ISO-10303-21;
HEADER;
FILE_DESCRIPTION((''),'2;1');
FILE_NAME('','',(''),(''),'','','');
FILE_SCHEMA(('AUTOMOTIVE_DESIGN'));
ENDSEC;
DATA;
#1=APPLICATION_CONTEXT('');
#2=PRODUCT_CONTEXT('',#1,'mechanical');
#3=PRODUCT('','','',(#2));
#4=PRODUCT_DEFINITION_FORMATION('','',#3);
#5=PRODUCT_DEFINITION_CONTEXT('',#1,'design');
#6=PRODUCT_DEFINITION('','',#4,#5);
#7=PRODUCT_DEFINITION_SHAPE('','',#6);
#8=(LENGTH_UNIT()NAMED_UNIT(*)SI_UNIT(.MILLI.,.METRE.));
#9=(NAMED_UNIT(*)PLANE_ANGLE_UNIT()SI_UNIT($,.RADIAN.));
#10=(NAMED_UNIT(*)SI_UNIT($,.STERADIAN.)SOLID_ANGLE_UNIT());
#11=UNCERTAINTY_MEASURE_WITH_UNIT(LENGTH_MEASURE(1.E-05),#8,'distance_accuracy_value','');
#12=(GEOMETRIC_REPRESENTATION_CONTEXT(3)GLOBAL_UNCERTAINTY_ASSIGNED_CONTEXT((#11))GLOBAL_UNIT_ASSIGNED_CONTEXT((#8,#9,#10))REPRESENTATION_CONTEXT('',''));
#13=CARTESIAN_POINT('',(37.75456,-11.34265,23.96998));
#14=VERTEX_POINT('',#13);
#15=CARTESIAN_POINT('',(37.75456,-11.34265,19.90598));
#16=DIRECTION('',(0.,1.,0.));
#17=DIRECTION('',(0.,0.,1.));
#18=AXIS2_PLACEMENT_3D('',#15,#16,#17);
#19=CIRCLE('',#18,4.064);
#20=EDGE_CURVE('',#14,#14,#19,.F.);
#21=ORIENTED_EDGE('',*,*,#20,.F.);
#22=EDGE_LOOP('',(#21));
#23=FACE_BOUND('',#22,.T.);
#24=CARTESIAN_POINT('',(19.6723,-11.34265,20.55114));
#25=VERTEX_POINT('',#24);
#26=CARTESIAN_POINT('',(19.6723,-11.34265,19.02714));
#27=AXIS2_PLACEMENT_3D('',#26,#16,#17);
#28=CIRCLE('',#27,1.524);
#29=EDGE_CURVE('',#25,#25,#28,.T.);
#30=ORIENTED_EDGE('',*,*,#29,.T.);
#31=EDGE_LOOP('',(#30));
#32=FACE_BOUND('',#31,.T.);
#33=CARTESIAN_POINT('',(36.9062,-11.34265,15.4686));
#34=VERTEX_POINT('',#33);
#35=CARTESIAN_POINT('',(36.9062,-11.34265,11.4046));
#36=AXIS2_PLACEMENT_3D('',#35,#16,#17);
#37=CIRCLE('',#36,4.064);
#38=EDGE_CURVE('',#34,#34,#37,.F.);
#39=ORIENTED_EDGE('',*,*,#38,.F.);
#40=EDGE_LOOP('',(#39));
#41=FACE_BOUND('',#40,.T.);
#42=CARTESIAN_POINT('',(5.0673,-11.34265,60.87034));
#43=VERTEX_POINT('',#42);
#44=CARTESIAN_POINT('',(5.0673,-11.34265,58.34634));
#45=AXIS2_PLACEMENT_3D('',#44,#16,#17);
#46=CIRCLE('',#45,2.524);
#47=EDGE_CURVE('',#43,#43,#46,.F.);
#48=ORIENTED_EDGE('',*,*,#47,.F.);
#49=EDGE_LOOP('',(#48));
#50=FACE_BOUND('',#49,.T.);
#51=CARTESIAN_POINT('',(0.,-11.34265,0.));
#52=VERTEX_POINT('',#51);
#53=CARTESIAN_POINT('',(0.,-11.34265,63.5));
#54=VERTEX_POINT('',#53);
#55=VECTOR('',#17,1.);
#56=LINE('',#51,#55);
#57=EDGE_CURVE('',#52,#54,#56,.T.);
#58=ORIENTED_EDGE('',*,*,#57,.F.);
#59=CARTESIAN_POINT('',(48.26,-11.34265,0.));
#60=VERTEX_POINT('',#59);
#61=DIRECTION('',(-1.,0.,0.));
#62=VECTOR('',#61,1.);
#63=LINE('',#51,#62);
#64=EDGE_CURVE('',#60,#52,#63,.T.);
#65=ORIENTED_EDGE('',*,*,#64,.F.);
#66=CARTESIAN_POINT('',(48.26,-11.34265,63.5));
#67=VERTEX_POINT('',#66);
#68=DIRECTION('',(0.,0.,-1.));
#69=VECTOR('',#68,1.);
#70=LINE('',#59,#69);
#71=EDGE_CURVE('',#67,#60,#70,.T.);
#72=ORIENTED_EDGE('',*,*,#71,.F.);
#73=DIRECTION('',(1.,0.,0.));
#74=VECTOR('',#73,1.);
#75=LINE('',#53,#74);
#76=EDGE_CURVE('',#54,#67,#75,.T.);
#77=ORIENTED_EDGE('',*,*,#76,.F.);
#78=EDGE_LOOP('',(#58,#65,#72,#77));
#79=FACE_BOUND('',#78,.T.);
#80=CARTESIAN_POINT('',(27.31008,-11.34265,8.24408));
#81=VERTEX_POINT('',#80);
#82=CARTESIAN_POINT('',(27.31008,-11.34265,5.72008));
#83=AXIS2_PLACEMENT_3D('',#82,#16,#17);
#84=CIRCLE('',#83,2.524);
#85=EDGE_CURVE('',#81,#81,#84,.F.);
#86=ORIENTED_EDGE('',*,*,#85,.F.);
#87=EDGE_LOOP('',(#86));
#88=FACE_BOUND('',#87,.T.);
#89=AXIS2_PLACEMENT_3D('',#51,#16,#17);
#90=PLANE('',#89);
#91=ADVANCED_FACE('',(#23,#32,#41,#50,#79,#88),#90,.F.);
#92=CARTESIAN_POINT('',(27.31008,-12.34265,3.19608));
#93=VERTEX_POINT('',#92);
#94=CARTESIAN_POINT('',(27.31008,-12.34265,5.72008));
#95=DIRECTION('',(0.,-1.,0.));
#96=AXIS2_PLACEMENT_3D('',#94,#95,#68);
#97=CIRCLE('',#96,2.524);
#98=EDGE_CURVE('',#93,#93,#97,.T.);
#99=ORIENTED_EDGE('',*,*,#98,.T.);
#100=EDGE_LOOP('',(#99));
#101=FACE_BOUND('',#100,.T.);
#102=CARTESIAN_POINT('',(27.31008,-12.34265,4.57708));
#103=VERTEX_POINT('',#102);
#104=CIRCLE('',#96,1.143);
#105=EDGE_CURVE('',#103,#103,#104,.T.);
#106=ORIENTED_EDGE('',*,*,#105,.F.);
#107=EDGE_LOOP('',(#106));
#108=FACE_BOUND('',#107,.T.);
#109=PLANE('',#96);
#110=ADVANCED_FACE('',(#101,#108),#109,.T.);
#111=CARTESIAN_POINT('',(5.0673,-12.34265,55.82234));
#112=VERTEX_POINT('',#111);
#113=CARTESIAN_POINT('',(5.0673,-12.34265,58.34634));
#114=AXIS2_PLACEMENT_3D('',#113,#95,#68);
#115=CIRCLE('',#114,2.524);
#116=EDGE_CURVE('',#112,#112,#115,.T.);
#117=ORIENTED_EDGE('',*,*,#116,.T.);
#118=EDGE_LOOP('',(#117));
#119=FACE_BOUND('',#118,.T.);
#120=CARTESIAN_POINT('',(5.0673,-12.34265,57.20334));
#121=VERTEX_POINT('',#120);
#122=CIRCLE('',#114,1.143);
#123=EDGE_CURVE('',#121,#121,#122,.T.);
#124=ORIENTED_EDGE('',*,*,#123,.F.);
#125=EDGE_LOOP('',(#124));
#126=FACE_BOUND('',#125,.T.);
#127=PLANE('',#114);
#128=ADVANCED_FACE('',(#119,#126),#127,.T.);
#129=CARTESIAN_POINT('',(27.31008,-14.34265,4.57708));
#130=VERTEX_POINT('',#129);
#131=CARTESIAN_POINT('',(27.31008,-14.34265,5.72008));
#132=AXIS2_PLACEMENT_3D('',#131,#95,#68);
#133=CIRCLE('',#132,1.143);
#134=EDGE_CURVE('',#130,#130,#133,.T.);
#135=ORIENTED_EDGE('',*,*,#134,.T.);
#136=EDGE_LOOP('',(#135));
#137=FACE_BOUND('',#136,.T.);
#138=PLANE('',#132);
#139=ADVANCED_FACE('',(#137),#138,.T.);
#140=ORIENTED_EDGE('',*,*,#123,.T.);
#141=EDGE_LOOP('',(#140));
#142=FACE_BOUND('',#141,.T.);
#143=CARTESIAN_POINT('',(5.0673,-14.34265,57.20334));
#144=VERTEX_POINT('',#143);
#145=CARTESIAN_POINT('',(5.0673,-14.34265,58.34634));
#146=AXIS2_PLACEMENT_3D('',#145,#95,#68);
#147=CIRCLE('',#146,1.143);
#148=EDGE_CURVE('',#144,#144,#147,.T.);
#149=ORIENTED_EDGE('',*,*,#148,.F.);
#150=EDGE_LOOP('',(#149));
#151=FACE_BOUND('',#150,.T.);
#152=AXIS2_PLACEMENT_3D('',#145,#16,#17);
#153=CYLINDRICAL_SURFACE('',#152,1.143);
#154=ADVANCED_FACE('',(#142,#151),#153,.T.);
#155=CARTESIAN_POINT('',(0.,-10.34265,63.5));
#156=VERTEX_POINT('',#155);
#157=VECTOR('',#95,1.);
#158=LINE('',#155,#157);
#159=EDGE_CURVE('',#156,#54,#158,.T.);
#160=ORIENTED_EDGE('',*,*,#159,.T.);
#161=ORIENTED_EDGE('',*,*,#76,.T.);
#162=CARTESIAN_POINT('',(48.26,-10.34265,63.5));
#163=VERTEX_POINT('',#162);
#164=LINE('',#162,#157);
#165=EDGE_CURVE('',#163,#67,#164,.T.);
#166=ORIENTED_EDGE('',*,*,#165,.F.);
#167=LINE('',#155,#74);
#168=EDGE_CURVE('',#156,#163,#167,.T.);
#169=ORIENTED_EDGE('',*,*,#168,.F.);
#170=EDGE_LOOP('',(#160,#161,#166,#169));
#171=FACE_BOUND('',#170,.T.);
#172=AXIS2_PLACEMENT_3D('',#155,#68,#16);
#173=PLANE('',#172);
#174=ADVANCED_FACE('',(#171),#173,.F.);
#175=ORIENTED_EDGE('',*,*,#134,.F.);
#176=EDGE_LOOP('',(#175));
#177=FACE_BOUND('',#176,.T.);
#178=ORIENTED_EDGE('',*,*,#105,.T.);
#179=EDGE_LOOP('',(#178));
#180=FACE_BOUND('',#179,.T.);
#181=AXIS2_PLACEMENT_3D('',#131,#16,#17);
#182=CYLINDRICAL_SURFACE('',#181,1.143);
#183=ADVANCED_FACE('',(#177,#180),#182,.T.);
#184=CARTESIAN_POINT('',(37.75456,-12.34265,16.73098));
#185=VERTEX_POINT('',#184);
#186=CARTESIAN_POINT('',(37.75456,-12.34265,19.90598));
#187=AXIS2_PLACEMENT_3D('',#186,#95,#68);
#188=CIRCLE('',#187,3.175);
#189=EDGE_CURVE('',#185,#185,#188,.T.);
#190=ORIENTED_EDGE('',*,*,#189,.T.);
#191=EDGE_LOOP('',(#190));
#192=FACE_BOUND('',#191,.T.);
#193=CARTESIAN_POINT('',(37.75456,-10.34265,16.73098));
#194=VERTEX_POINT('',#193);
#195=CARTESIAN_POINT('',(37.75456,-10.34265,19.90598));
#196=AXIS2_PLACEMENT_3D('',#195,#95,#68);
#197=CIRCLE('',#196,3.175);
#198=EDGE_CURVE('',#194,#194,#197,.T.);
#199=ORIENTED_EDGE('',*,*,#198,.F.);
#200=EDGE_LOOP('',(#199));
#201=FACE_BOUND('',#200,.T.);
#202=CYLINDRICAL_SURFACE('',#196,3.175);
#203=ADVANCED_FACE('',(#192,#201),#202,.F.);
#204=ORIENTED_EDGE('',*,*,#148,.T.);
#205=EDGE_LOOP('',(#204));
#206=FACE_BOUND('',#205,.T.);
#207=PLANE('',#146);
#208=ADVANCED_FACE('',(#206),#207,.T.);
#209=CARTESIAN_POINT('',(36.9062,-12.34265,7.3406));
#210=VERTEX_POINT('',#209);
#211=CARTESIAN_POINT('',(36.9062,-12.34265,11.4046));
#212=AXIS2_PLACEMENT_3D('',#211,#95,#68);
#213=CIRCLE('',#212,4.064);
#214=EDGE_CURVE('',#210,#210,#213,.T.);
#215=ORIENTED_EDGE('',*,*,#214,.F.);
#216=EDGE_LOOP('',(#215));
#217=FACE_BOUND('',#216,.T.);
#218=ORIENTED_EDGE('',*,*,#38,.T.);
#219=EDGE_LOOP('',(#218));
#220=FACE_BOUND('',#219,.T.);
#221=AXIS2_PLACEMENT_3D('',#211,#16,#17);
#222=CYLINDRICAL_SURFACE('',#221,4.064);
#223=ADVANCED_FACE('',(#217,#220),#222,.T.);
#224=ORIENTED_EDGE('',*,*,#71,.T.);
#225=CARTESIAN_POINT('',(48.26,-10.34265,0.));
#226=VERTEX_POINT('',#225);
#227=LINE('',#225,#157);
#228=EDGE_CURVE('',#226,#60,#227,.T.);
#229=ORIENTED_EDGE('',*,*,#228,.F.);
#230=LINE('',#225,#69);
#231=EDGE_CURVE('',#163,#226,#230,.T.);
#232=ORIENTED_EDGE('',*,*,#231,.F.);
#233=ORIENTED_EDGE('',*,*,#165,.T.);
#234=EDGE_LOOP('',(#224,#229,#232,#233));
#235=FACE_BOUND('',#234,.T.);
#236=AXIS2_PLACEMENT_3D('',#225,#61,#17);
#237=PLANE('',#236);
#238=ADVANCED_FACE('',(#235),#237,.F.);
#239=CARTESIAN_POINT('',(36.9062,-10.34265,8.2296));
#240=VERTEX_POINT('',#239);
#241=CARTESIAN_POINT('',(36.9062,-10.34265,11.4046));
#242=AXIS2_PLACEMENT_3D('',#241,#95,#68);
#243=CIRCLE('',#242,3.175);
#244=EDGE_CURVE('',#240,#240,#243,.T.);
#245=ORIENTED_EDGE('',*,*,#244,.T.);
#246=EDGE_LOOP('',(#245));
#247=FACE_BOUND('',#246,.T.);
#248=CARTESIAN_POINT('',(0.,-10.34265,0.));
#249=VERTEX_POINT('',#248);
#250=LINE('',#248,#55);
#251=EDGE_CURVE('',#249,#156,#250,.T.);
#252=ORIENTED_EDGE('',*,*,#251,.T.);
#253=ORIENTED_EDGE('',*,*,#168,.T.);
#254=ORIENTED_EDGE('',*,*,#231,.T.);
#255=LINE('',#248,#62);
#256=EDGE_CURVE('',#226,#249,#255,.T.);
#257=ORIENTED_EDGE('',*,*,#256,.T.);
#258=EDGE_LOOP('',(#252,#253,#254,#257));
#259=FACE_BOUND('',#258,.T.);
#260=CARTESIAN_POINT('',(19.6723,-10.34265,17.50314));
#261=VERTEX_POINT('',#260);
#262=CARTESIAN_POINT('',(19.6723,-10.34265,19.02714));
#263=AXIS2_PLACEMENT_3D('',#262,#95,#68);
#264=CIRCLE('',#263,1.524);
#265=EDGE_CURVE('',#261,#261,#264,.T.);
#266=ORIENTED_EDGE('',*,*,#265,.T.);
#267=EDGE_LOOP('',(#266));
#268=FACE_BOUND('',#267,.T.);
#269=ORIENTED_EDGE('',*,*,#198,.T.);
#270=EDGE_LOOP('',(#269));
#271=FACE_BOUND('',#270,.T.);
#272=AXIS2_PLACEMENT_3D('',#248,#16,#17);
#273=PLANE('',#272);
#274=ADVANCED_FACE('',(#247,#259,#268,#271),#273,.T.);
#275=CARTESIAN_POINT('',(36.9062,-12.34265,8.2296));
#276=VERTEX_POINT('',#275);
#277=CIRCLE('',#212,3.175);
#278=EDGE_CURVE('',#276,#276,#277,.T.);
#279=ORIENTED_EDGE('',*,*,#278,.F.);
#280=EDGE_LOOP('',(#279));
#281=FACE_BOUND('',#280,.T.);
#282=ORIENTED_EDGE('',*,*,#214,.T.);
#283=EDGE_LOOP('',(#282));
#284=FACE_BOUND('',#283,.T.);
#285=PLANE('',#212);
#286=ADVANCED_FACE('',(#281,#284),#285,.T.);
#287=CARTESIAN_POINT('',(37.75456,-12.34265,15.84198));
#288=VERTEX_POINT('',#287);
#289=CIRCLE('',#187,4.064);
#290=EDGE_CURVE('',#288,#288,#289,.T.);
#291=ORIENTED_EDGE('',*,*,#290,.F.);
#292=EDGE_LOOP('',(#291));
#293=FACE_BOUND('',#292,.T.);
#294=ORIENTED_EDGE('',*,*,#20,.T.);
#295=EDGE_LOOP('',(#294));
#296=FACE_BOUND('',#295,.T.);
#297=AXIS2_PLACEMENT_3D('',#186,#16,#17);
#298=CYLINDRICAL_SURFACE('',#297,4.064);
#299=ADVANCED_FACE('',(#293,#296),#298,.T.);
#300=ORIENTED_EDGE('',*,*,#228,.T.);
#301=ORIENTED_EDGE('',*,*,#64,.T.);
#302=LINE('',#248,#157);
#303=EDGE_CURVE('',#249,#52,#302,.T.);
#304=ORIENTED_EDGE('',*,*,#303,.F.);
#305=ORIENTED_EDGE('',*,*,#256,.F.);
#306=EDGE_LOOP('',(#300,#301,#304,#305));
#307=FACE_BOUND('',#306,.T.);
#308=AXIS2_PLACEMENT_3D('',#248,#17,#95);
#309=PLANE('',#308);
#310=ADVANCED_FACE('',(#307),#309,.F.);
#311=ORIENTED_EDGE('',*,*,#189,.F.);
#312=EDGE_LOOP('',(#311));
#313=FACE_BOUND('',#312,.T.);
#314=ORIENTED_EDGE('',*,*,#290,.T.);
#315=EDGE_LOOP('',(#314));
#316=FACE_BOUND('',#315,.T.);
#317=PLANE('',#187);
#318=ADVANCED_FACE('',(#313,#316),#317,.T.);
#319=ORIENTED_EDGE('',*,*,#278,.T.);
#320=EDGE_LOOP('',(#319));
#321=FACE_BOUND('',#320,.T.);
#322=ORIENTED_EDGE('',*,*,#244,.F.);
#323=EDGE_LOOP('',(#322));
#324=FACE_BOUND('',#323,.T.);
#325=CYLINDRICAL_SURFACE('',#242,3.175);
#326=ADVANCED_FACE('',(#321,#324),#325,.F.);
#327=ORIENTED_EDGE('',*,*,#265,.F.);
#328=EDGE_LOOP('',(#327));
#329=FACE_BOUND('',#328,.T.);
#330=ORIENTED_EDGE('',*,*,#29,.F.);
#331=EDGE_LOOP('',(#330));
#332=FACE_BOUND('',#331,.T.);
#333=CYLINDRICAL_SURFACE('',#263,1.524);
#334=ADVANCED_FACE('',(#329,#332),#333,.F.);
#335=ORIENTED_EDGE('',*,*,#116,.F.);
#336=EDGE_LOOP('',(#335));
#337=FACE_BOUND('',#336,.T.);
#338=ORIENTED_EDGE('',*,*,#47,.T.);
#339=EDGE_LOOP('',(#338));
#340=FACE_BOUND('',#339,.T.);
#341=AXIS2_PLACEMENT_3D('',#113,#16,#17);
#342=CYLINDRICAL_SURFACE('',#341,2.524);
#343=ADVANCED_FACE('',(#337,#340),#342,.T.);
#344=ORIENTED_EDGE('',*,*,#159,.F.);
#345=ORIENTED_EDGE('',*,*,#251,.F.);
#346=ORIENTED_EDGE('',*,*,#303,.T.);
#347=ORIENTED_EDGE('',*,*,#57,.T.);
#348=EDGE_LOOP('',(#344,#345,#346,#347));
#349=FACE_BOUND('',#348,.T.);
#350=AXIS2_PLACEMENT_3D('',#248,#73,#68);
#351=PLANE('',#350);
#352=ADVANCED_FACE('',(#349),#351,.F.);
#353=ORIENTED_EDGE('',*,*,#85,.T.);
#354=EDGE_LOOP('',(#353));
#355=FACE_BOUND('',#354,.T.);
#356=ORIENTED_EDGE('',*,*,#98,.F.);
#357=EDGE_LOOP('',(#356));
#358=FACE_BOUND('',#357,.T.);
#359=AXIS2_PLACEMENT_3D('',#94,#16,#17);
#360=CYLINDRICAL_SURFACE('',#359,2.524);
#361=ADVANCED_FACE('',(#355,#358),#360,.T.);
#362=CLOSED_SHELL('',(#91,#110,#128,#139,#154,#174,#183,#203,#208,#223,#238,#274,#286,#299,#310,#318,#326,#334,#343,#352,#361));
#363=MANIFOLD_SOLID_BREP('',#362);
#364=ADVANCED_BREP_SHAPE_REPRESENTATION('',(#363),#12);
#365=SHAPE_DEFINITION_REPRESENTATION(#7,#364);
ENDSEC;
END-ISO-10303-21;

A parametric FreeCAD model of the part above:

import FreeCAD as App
import Part
import Sketcher

V = App.Vector
Q = App.Units.Quantity


def add_polygon(sketch, points):
    """Adds a closed chain of lines whose ends are joined by coincident constraints."""
    first, n = sketch.GeometryCount, len(points)
    for a, b in zip(points, points[1:] + points[:1]):
        sketch.addGeometry(Part.LineSegment(App.Vector(*a, 0), App.Vector(*b, 0)), False)
    for i in range(n):
        sketch.addConstraint(Sketcher.Constraint("Coincident", first + i, 2, first + (i + 1) % n, 1))

doc = App.newDocument("Part")
params = doc.addObject("Spreadsheet::Sheet", "Params")
for row, (alias, value) in enumerate([
    ("sketch1_width", "1.9 in"),
    ("sketch1_height", "2.5 in"),
    ("pad1_length", "1 mm"),
    ("sketch2_diameter", "0.09 in"),
    ("pad2_length", "3 mm"),
    ("sketch3_diameter", "0.32 in"),
    ("pad3_length", "1 mm"),
    ("sketch4_diameter", "0.25 in"),
    ("sketch4_diameter2", "0.12 in"),
], start=1):
    params.set(f"A{row}", alias)
    params.set(f"B{row}", "=" + value)
    params.setAlias(f"B{row}", alias)

body = doc.addObject("PartDesign::Body", "Body")

sketch1 = body.newObject("Sketcher::SketchObject", "Sketch")
sketch1.AttachmentSupport = (doc.getObject("XZ_Plane"), [""])
sketch1.MapMode = "FlatFace"
sketch1.AttachmentOffset = App.Placement(V(0, 0, 11.34265), App.Rotation())
add_polygon(sketch1, [(0, 0), (0, 64), (48, 64), (48, 0)])
sketch1.addConstraint(Sketcher.Constraint("Vertical", 0))
sketch1.addConstraint(Sketcher.Constraint("Horizontal", 1))
sketch1.addConstraint(Sketcher.Constraint("Vertical", 2))
sketch1.addConstraint(Sketcher.Constraint("Horizontal", 3))
sketch1.addConstraint(Sketcher.Constraint("Coincident", 3, 2, -1, 1))
sketch1.addConstraint(Sketcher.Constraint("DistanceX", 1, 1, 1, 2, Q("1.9 in")))
sketch1.addConstraint(Sketcher.Constraint("DistanceY", 0, 1, 0, 2, Q("2.5 in")))
sketch1.setExpression("Constraints[9]", "Params.sketch1_width")
sketch1.setExpression("Constraints[10]", "Params.sketch1_height")
pad1 = body.newObject("PartDesign::Pad", "Pad")
pad1.Profile = sketch1
pad1.setExpression("Length", "Params.pad1_length")
pad1.Reversed = True

sketch2 = body.newObject("Sketcher::SketchObject", "Sketch001")
sketch2.AttachmentSupport = (doc.getObject("XZ_Plane"), [""])
sketch2.MapMode = "FlatFace"
sketch2.AttachmentOffset = App.Placement(V(0, 0, 11.34265), App.Rotation())
sketch2.addGeometry(Part.Circle(V(5.1, 58.3, 0), V(0, 0, 1), 1.1), False)
sketch2.addGeometry(Part.Circle(V(27.3, 5.7, 0), V(0, 0, 1), 1.1), False)
sketch2.addConstraint(Sketcher.Constraint("Equal", 0, 1))
sketch2.addConstraint(Sketcher.Constraint("Diameter", 0, Q("0.09 in")))
sketch2.addConstraint(Sketcher.Constraint("DistanceX", -1, 1, 0, 3, Q("0.1995 in")))
sketch2.addConstraint(Sketcher.Constraint("DistanceY", -1, 1, 0, 3, Q("2.2971 in")))
sketch2.addConstraint(Sketcher.Constraint("DistanceX", -1, 1, 1, 3, Q("1.0752 in")))
sketch2.addConstraint(Sketcher.Constraint("DistanceY", -1, 1, 1, 3, Q("0.2252 in")))
sketch2.setExpression("Constraints[1]", "Params.sketch2_diameter")
pad2 = body.newObject("PartDesign::Pad", "Pad001")
pad2.Profile = sketch2
pad2.setExpression("Length", "Params.pad2_length")

sketch3 = body.newObject("Sketcher::SketchObject", "Sketch002")
sketch3.AttachmentSupport = (doc.getObject("XZ_Plane"), [""])
sketch3.MapMode = "FlatFace"
sketch3.AttachmentOffset = App.Placement(V(0, 0, 11.34265), App.Rotation())
sketch3.addGeometry(Part.Circle(V(5.1, 58.3, 0), V(0, 0, 1), 2.5), False)
sketch3.addGeometry(Part.Circle(V(37.8, 19.9, 0), V(0, 0, 1), 4.1), False)
sketch3.addGeometry(Part.Circle(V(36.9, 11.4, 0), V(0, 0, 1), 4.1), False)
sketch3.addGeometry(Part.Circle(V(27.3, 5.7, 0), V(0, 0, 1), 2.5), False)
sketch3.addConstraint(Sketcher.Constraint("Equal", 1, 2))
sketch3.addConstraint(Sketcher.Constraint("Equal", 0, 3))
sketch3.addConstraint(Sketcher.Constraint("Diameter", 1, Q("0.32 in")))
sketch3.addConstraint(Sketcher.Constraint("Diameter", 0, 5.048))
sketch3.addConstraint(Sketcher.Constraint("DistanceX", -1, 1, 2, 3, Q("1.453 in")))
sketch3.addConstraint(Sketcher.Constraint("DistanceY", -1, 1, 2, 3, Q("0.449 in")))
sketch3.addConstraint(Sketcher.Constraint("DistanceX", -1, 1, 0, 3, Q("0.1995 in")))
sketch3.addConstraint(Sketcher.Constraint("DistanceY", -1, 1, 0, 3, Q("2.2971 in")))
sketch3.addConstraint(Sketcher.Constraint("DistanceX", -1, 1, 1, 3, Q("1.4864 in")))
sketch3.addConstraint(Sketcher.Constraint("DistanceY", -1, 1, 1, 3, Q("0.7837 in")))
sketch3.addConstraint(Sketcher.Constraint("DistanceX", -1, 1, 3, 3, Q("1.0752 in")))
sketch3.addConstraint(Sketcher.Constraint("DistanceY", -1, 1, 3, 3, Q("0.2252 in")))
sketch3.setExpression("Constraints[2]", "Params.sketch3_diameter")
pad3 = body.newObject("PartDesign::Pad", "Pad002")
pad3.Profile = sketch3
pad3.setExpression("Length", "Params.pad3_length")

sketch4 = body.newObject("Sketcher::SketchObject", "Sketch003")
sketch4.AttachmentSupport = (doc.getObject("XZ_Plane"), [""])
sketch4.MapMode = "FlatFace"
sketch4.AttachmentOffset = App.Placement(V(0, 0, 11.34265), App.Rotation())
sketch4.addGeometry(Part.Circle(V(37.8, 19.9, 0), V(0, 0, 1), 3.2), False)
sketch4.addGeometry(Part.Circle(V(36.9, 11.4, 0), V(0, 0, 1), 3.2), False)
sketch4.addGeometry(Part.Circle(V(19.7, 19, 0), V(0, 0, 1), 1.5), False)
sketch4.addConstraint(Sketcher.Constraint("Equal", 0, 1))
sketch4.addConstraint(Sketcher.Constraint("Diameter", 0, Q("0.25 in")))
sketch4.addConstraint(Sketcher.Constraint("Diameter", 2, Q("0.12 in")))
sketch4.addConstraint(Sketcher.Constraint("DistanceX", -1, 1, 1, 3, Q("1.453 in")))
sketch4.addConstraint(Sketcher.Constraint("DistanceY", -1, 1, 1, 3, Q("0.449 in")))
sketch4.addConstraint(Sketcher.Constraint("DistanceX", -1, 1, 0, 3, Q("1.4864 in")))
sketch4.addConstraint(Sketcher.Constraint("DistanceY", -1, 1, 0, 3, Q("0.7837 in")))
sketch4.addConstraint(Sketcher.Constraint("DistanceX", -1, 1, 2, 3, Q("0.7745 in")))
sketch4.addConstraint(Sketcher.Constraint("DistanceY", -1, 1, 2, 3, Q("0.7491 in")))
sketch4.setExpression("Constraints[1]", "Params.sketch4_diameter")
sketch4.setExpression("Constraints[2]", "Params.sketch4_diameter2")
pocket1 = body.newObject("PartDesign::Pocket", "Pocket")
pocket1.Profile = sketch4
pocket1.Type = "ThroughAll"
pocket1.Midplane = True

doc.recompute()
